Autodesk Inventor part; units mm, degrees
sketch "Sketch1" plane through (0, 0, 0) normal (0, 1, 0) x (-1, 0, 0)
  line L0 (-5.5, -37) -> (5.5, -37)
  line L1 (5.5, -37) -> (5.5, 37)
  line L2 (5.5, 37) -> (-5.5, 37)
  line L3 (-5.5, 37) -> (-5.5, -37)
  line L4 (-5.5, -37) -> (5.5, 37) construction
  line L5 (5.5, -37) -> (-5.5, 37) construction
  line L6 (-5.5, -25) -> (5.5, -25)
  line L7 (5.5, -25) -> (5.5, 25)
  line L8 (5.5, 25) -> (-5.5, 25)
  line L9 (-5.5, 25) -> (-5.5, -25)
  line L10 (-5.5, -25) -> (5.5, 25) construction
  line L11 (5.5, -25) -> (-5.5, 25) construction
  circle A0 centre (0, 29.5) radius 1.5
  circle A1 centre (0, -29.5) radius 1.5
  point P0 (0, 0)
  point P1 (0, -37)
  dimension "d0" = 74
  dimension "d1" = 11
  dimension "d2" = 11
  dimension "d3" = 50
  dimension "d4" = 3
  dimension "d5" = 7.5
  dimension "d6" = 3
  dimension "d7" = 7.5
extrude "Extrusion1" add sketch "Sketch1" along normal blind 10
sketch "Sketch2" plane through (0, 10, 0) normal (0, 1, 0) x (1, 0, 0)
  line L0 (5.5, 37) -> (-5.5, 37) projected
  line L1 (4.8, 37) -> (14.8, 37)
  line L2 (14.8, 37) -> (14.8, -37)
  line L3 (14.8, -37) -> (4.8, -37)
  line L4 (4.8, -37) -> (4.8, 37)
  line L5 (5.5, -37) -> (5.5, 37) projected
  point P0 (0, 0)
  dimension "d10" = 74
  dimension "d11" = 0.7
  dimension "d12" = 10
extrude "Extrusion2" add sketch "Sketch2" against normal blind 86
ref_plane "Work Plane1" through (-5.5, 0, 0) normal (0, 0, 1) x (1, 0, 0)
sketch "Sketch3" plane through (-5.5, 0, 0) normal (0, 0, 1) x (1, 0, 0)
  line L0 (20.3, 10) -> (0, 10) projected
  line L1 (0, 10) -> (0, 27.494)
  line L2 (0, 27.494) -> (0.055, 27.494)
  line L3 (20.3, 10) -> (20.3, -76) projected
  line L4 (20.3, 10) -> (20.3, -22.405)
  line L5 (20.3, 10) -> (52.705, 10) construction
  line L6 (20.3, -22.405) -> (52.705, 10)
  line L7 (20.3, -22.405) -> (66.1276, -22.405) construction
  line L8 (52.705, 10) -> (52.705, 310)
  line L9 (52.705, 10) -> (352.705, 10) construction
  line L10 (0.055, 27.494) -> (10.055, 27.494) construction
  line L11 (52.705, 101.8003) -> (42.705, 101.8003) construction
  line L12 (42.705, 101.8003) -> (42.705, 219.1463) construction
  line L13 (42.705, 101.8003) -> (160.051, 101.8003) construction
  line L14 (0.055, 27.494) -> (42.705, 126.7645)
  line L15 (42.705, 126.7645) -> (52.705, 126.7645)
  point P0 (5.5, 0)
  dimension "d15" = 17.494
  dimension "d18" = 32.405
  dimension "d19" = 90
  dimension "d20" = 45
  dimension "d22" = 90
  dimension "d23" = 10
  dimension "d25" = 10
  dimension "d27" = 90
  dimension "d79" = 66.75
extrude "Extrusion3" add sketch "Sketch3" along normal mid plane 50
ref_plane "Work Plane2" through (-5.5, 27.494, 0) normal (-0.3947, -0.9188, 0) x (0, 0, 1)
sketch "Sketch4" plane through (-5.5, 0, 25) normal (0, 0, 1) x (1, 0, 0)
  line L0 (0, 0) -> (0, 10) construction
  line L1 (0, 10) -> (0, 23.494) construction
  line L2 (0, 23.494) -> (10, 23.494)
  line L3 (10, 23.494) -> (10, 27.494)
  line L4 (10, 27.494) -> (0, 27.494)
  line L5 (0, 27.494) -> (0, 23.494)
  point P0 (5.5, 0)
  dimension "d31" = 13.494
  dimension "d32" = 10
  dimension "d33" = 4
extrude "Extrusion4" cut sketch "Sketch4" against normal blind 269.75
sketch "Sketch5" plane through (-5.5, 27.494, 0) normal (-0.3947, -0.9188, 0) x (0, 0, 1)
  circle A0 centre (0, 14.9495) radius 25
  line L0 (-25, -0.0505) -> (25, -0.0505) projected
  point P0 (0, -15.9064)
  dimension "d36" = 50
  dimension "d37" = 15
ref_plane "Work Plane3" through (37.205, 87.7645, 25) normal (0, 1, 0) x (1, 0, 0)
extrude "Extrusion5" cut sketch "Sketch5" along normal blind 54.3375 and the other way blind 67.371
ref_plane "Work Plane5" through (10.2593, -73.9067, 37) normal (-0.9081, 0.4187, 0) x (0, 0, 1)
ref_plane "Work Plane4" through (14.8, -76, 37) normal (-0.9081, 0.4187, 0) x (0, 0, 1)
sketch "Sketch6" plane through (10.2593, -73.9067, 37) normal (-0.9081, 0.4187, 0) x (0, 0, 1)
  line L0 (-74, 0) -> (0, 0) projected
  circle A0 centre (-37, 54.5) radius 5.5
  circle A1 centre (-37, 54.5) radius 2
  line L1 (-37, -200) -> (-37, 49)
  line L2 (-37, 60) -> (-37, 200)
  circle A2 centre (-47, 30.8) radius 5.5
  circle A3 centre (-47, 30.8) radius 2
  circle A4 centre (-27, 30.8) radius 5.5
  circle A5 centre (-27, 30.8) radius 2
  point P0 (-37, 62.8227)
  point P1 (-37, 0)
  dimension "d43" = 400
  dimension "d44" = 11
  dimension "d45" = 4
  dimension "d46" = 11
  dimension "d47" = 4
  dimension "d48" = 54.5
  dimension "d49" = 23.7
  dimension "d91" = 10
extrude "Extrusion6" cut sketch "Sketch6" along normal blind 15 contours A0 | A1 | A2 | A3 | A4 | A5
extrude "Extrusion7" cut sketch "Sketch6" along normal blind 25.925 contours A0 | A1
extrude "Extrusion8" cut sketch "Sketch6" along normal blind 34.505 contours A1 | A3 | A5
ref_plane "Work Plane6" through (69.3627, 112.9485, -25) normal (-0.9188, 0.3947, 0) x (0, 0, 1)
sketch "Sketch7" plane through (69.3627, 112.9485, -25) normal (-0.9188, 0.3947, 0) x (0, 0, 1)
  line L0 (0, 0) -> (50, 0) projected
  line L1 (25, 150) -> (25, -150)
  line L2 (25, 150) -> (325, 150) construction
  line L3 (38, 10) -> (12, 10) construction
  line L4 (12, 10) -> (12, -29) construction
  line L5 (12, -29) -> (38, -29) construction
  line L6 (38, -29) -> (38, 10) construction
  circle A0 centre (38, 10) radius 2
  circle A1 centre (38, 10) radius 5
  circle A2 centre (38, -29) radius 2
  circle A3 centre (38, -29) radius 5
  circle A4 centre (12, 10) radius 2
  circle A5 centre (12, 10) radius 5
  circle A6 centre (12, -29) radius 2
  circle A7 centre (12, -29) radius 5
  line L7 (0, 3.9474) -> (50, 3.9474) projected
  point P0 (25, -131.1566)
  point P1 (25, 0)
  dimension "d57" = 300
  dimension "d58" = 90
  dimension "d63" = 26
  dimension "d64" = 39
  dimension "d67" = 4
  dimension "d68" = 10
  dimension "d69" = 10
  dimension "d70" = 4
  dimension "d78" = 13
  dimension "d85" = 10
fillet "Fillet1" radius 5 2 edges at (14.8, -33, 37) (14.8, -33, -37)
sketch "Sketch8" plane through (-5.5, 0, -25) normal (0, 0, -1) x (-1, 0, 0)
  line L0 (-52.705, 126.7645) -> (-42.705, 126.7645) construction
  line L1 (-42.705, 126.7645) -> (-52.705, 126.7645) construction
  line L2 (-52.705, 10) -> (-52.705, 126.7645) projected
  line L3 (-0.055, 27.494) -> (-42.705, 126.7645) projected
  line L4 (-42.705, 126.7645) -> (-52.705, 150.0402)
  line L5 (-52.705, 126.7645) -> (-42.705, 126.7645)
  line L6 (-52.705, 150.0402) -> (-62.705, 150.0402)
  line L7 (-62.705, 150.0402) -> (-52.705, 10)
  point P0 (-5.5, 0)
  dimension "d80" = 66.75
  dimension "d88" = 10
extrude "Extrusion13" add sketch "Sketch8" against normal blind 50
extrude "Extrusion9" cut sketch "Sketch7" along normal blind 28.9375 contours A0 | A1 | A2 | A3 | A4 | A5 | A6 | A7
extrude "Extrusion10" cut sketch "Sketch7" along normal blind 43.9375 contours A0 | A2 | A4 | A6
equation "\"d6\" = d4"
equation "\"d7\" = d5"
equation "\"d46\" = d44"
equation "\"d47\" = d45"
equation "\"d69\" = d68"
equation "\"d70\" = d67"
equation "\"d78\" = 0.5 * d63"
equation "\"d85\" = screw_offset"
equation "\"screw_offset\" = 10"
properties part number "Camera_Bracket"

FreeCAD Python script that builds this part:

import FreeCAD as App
import Part
import Sketcher
Q = App.Units.Quantity


def edges_at(feature, points):
    """Names of the edges that pass closest to the given points."""
    edges = feature.Shape.Edges
    near = lambda p: min(range(len(edges)), key=lambda i: edges[i].distToShape(Part.Vertex(*p))[0])
    return sorted({f"Edge{near(p) + 1}" for p in points})

doc = App.newDocument("Part")
body = doc.addObject("PartDesign::Body", "Body")

sketch1 = body.newObject("Sketcher::SketchObject", "Sketch")
sketch1.AttachmentSupport = (doc.getObject("XZ_Plane"), [""])
sketch1.MapMode = "FlatFace"
sketch1.addGeometry(Part.LineSegment(App.Vector(5.5, -37, 0), App.Vector(-5.5, -37, 0)), False)
sketch1.addGeometry(Part.LineSegment(App.Vector(-5.5, -37, 0), App.Vector(-5.5, 37, 0)), False)
sketch1.addGeometry(Part.LineSegment(App.Vector(-5.5, 37, 0), App.Vector(5.5, 37, 0)), False)
sketch1.addGeometry(Part.LineSegment(App.Vector(5.5, 37, 0), App.Vector(5.5, -37, 0)), False)
sketch1.addGeometry(Part.Circle(App.Vector(0, -29.5, 0), App.Vector(0, 0, 1), 1.5), False)
sketch1.addGeometry(Part.Circle(App.Vector(0, 29.5, 0), App.Vector(0, 0, 1), 1.5), False)
sketch1.addConstraint(Sketcher.Constraint("Coincident", 0, 2, 1, 1))
sketch1.addConstraint(Sketcher.Constraint("Coincident", 1, 2, 2, 1))
sketch1.addConstraint(Sketcher.Constraint("Coincident", 2, 2, 3, 1))
sketch1.addConstraint(Sketcher.Constraint("Coincident", 3, 2, 0, 1))
sketch1.addConstraint(Sketcher.Constraint("Horizontal", 0))
sketch1.addConstraint(Sketcher.Constraint("Vertical", 1))
sketch1.addConstraint(Sketcher.Constraint("Horizontal", 2))
sketch1.addConstraint(Sketcher.Constraint("Vertical", 3))
sketch1.addConstraint(Sketcher.Constraint("Equal", 4, 5))
sketch1.addConstraint(Sketcher.Constraint("Symmetric", 4, 3, 5, 3, -1, 1))
sketch1.addConstraint(Sketcher.Constraint("Symmetric", 0, 2, 2, 2, -1, 1))
sketch1.addConstraint(Sketcher.Constraint("PointOnObject", 4, 3, -2))
sketch1.addConstraint(Sketcher.Constraint("Diameter", 4, 3.0))
sketch1.addConstraint(Sketcher.Constraint("DistanceX", 0, 2, 0, 1, 11.0))
sketch1.addConstraint(Sketcher.Constraint("DistanceY", 1, 1, 1, 2, 74.0))
sketch1.addConstraint(Sketcher.Constraint("DistanceY", 0, 2, 4, 3, 7.5))
pad1 = body.newObject("PartDesign::Pad", "Pad")
pad1.Profile = sketch1
pad1.Length = 10
pad1.Reversed = True

sketch2 = body.newObject("Sketcher::SketchObject", "Sketch001")
sketch2.AttachmentSupport = (doc.getObject("XZ_Plane"), [""])
sketch2.MapMode = "FlatFace"
sketch2.AttachmentOffset = App.Placement(App.Vector(0, 0, -10), App.Rotation())
sketch2.addGeometry(Part.LineSegment(App.Vector(4.8, 37, 0), App.Vector(14.8, 37, 0)), False)
sketch2.addGeometry(Part.LineSegment(App.Vector(14.8, 37, 0), App.Vector(14.8, -37, 0)), False)
sketch2.addGeometry(Part.LineSegment(App.Vector(14.8, -37, 0), App.Vector(4.8, -37, 0)), False)
sketch2.addGeometry(Part.LineSegment(App.Vector(4.8, -37, 0), App.Vector(4.8, 37, 0)), False)
sketch2.addConstraint(Sketcher.Constraint("Coincident", 0, 2, 1, 1))
sketch2.addConstraint(Sketcher.Constraint("Coincident", 1, 2, 2, 1))
sketch2.addConstraint(Sketcher.Constraint("Coincident", 2, 2, 3, 1))
sketch2.addConstraint(Sketcher.Constraint("Coincident", 3, 2, 0, 1))
sketch2.addConstraint(Sketcher.Constraint("Horizontal", 0))
sketch2.addConstraint(Sketcher.Constraint("Vertical", 1))
sketch2.addConstraint(Sketcher.Constraint("Horizontal", 2))
sketch2.addConstraint(Sketcher.Constraint("Vertical", 3))
sketch2.addConstraint(Sketcher.Constraint("DistanceX", 0, 1, 0, 2, 10.0))
sketch2.addConstraint(Sketcher.Constraint("DistanceY", 1, 2, 1, 1, 74.0))
sketch2.addConstraint(Sketcher.Constraint("DistanceY", -1, 1, 0, 2, 37.0))
sketch2.addConstraint(Sketcher.Constraint("DistanceX", -1, 1, 0, 2, 14.8))
pad2 = body.newObject("PartDesign::Pad", "Pad001")
pad2.Profile = sketch2
pad2.Length = 86

sketch3 = body.newObject("Sketcher::SketchObject", "Sketch002")
sketch3.AttachmentSupport = (doc.getObject("XY_Plane"), [""])
sketch3.MapMode = "FlatFace"
sketch3.addGeometry(Part.LineSegment(App.Vector(-5.5, 10, 0), App.Vector(14.8, 10, 0)), False)
sketch3.addGeometry(Part.LineSegment(App.Vector(14.8, 10, 0), App.Vector(14.8, -22.405, 0)), False)
sketch3.addGeometry(Part.LineSegment(App.Vector(14.8, -22.405, 0), App.Vector(47.205, 10, 0)), False)
sketch3.addGeometry(Part.LineSegment(App.Vector(47.205, 10, 0), App.Vector(47.205, 126.7645, 0)), False)
sketch3.addGeometry(Part.LineSegment(App.Vector(47.205, 126.7645, 0), App.Vector(37.205, 126.7645, 0)), False)
sketch3.addGeometry(Part.LineSegment(App.Vector(37.205, 126.7645, 0), App.Vector(-5.445, 27.494, 0)), False)
sketch3.addGeometry(Part.LineSegment(App.Vector(-5.445, 27.494, 0), App.Vector(-5.5, 27.494, 0)), False)
sketch3.addGeometry(Part.LineSegment(App.Vector(-5.5, 27.494, 0), App.Vector(-5.5, 10, 0)), False)
sketch3.addConstraint(Sketcher.Constraint("Coincident", 0, 2, 1, 1))
sketch3.addConstraint(Sketcher.Constraint("Coincident", 1, 2, 2, 1))
sketch3.addConstraint(Sketcher.Constraint("Coincident", 2, 2, 3, 1))
sketch3.addConstraint(Sketcher.Constraint("Coincident", 3, 2, 4, 1))
sketch3.addConstraint(Sketcher.Constraint("Coincident", 4, 2, 5, 1))
sketch3.addConstraint(Sketcher.Constraint("Coincident", 5, 2, 6, 1))
sketch3.addConstraint(Sketcher.Constraint("Coincident", 6, 2, 7, 1))
sketch3.addConstraint(Sketcher.Constraint("Coincident", 7, 2, 0, 1))
sketch3.addConstraint(Sketcher.Constraint("Horizontal", 0))
sketch3.addConstraint(Sketcher.Constraint("Vertical", 1))
sketch3.addConstraint(Sketcher.Constraint("Vertical", 3))
sketch3.addConstraint(Sketcher.Constraint("Horizontal", 4))
sketch3.addConstraint(Sketcher.Constraint("Horizontal", 6))
sketch3.addConstraint(Sketcher.Constraint("Vertical", 7))
sketch3.addConstraint(Sketcher.Constraint("Horizontal", 0, 2, 2, 2))
sketch3.addConstraint(Sketcher.Constraint("DistanceX", 4, 2, 4, 1, 10.0))
sketch3.addConstraint(Sketcher.Constraint("Angle", 2, Q("45 deg")))
sketch3.addConstraint(Sketcher.Constraint("DistanceY", -1, 1, 0, 2, 10.0))
sketch3.addConstraint(Sketcher.Constraint("DistanceY", 1, 2, 1, 1, 32.405))
sketch3.addConstraint(Sketcher.Constraint("DistanceY", 7, 2, 7, 1, 17.494))
sketch3.addConstraint(Sketcher.Constraint("DistanceX", 0, 1, 0, 2, 20.3))
sketch3.addConstraint(Sketcher.Constraint("DistanceX", -1, 1, 0, 2, 14.8))
sketch3.addConstraint(Sketcher.Constraint("Angle", 5, Q("-113.25 deg")))
sketch3.addConstraint(Sketcher.Constraint("DistanceX", 6, 2, 6, 1, 0.055))
pad3 = body.newObject("PartDesign::Pad", "Pad002")
pad3.Profile = sketch3
pad3.Length = 50
pad3.Midplane = True

sketch4 = body.newObject("Sketcher::SketchObject", "Sketch003")
sketch4.AttachmentSupport = (doc.getObject("XY_Plane"), [""])
sketch4.MapMode = "FlatFace"
sketch4.AttachmentOffset = App.Placement(App.Vector(0, 0, 25), App.Rotation())
sketch4.addGeometry(Part.LineSegment(App.Vector(-5.5, 27.494, 0), App.Vector(-5.5, 23.494, 0)), False)
sketch4.addGeometry(Part.LineSegment(App.Vector(-5.5, 23.494, 0), App.Vector(4.5, 23.494, 0)), False)
sketch4.addGeometry(Part.LineSegment(App.Vector(4.5, 23.494, 0), App.Vector(4.5, 27.494, 0)), False)
sketch4.addGeometry(Part.LineSegment(App.Vector(4.5, 27.494, 0), App.Vector(-5.5, 27.494, 0)), False)
sketch4.addConstraint(Sketcher.Constraint("Coincident", 0, 2, 1, 1))
sketch4.addConstraint(Sketcher.Constraint("Coincident", 1, 2, 2, 1))
sketch4.addConstraint(Sketcher.Constraint("Coincident", 2, 2, 3, 1))
sketch4.addConstraint(Sketcher.Constraint("Coincident", 3, 2, 0, 1))
sketch4.addConstraint(Sketcher.Constraint("Vertical", 0))
sketch4.addConstraint(Sketcher.Constraint("Horizontal", 1))
sketch4.addConstraint(Sketcher.Constraint("Vertical", 2))
sketch4.addConstraint(Sketcher.Constraint("Horizontal", 3))
sketch4.addConstraint(Sketcher.Constraint("DistanceX", 1, 1, 1, 2, 10.0))
sketch4.addConstraint(Sketcher.Constraint("DistanceY", 0, 2, 0, 1, 4.0))
sketch4.addConstraint(Sketcher.Constraint("DistanceX", 0, 2, -1, 1, 5.5))
sketch4.addConstraint(Sketcher.Constraint("DistanceY", -1, 1, 0, 2, 23.494))
pocket1 = body.newObject("PartDesign::Pocket", "Pocket")
pocket1.Profile = sketch4
pocket1.Length = 269.75

sketch5 = body.newObject("Sketcher::SketchObject", "Sketch004")
sketch5.Placement = App.Placement(App.Vector(-5.5, 27.494, 0), App.Rotation(App.Vector(0, 0, 1), App.Vector(-0.918808485, 0.394703645, 0), App.Vector(-0.394703645, -0.918808485, 0), "ZXY"))
sketch5.addGeometry(Part.Circle(App.Vector(0, 14.9495, 0), App.Vector(0, 0, 1), 25), False)
sketch5.addConstraint(Sketcher.Constraint("PointOnObject", 0, 3, -2))
sketch5.addConstraint(Sketcher.Constraint("Diameter", 0, 50.0))
sketch5.addConstraint(Sketcher.Constraint("DistanceY", -1, 1, 0, 3, 14.9495))
pocket2 = body.newObject("PartDesign::Pocket", "Pocket001")
pocket2.Profile = sketch5
pocket2.Type = "TwoLengths"
pocket2.Length = 54.3375
pocket2.Length2 = 67.371
pocket2.Reversed = True

sketch6 = body.newObject("Sketcher::SketchObject", "Sketch005")
sketch6.Placement = App.Placement(App.Vector(10.2593, -73.9067, 37), App.Rotation(App.Vector(0, 0, 1), App.Vector(0.418709358, 0.908120297, 0), App.Vector(-0.908120297, 0.418709358, 0), "ZXY"))
sketch6.addGeometry(Part.Circle(App.Vector(-37, 54.5, 0), App.Vector(0, 0, 1), 5.5), False)
sketch6.addGeometry(Part.Circle(App.Vector(-47, 30.8, 0), App.Vector(0, 0, 1), 5.5), False)
sketch6.addGeometry(Part.Circle(App.Vector(-27, 30.8, 0), App.Vector(0, 0, 1), 5.5), False)
sketch6.addConstraint(Sketcher.Constraint("Equal", 0, 1))
sketch6.addConstraint(Sketcher.Constraint("Equal", 1, 2))
sketch6.addConstraint(Sketcher.Constraint("Horizontal", 1, 3, 2, 3))
sketch6.addConstraint(Sketcher.Constraint("Diameter", 0, 11.0))
sketch6.addConstraint(Sketcher.Constraint("DistanceX", 1, 3, 0, 3, 10.0))
sketch6.addConstraint(Sketcher.Constraint("DistanceX", 0, 3, 2, 3, 10.0))
sketch6.addConstraint(Sketcher.Constraint("DistanceY", -1, 1, 0, 3, 54.5))
sketch6.addConstraint(Sketcher.Constraint("DistanceY", 1, 3, 0, 3, 23.7))
sketch6.addConstraint(Sketcher.Constraint("DistanceX", 0, 3, -1, 1, 37.0))
pocket3 = body.newObject("PartDesign::Pocket", "Pocket002")
pocket3.Profile = sketch6
pocket3.Length = 15
pocket3.Reversed = True

sketch7 = body.newObject("Sketcher::SketchObject", "Sketch006")
sketch7.Placement = App.Placement(App.Vector(10.2593, -73.9067, 37), App.Rotation(App.Vector(0, 0, 1), App.Vector(0.418709358, 0.908120297, 0), App.Vector(-0.908120297, 0.418709358, 0), "ZXY"))
sketch7.addGeometry(Part.Circle(App.Vector(-37, 54.5, 0), App.Vector(0, 0, 1), 5.5), False)
sketch7.addConstraint(Sketcher.Constraint("Diameter", 0, 11.0))
sketch7.addConstraint(Sketcher.Constraint("DistanceY", -1, 1, 0, 3, 54.5))
sketch7.addConstraint(Sketcher.Constraint("DistanceX", 0, 3, -1, 1, 37.0))
pocket4 = body.newObject("PartDesign::Pocket", "Pocket003")
pocket4.Profile = sketch7
pocket4.Length = 25.925
pocket4.Reversed = True

sketch8 = body.newObject("Sketcher::SketchObject", "Sketch007")
sketch8.Placement = App.Placement(App.Vector(10.2593, -73.9067, 37), App.Rotation(App.Vector(0, 0, 1), App.Vector(0.418709358, 0.908120297, 0), App.Vector(-0.908120297, 0.418709358, 0), "ZXY"))
sketch8.addGeometry(Part.Circle(App.Vector(-37, 54.5, 0), App.Vector(0, 0, 1), 2), False)
sketch8.addGeometry(Part.Circle(App.Vector(-47, 30.8, 0), App.Vector(0, 0, 1), 2), False)
sketch8.addGeometry(Part.Circle(App.Vector(-27, 30.8, 0), App.Vector(0, 0, 1), 2), False)
sketch8.addConstraint(Sketcher.Constraint("Equal", 0, 1))
sketch8.addConstraint(Sketcher.Constraint("Equal", 1, 2))
sketch8.addConstraint(Sketcher.Constraint("Horizontal", 1, 3, 2, 3))
sketch8.addConstraint(Sketcher.Constraint("Diameter", 0, 4.0))
sketch8.addConstraint(Sketcher.Constraint("DistanceX", 1, 3, 0, 3, 10.0))
sketch8.addConstraint(Sketcher.Constraint("DistanceX", 0, 3, 2, 3, 10.0))
sketch8.addConstraint(Sketcher.Constraint("DistanceY", -1, 1, 0, 3, 54.5))
sketch8.addConstraint(Sketcher.Constraint("DistanceY", 1, 3, 0, 3, 23.7))
sketch8.addConstraint(Sketcher.Constraint("DistanceX", 0, 3, -1, 1, 37.0))
pocket5 = body.newObject("PartDesign::Pocket", "Pocket004")
pocket5.Profile = sketch8
pocket5.Length = 34.505
pocket5.Reversed = True
doc.recompute()

fillet = body.newObject("PartDesign::Fillet", "Fillet")
fillet.Base = (pocket5, edges_at(pocket5, [(14.8, -33, 37), (14.8, -33, -37)]))
fillet.Radius = 5

sketch9 = body.newObject("Sketcher::SketchObject", "Sketch008")
sketch9.AttachmentSupport = (doc.getObject("XY_Plane"), [""])
sketch9.MapMode = "FlatFace"
sketch9.AttachmentOffset = App.Placement(App.Vector(0, 0, -25), App.Rotation())
sketch9.addGeometry(Part.LineSegment(App.Vector(57.205, 150.0402, 0), App.Vector(47.205, 10, 0)), False)
sketch9.addGeometry(Part.LineSegment(App.Vector(47.205, 10, 0), App.Vector(47.205, 126.7645, 0)), False)
sketch9.addGeometry(Part.LineSegment(App.Vector(47.205, 126.7645, 0), App.Vector(37.205, 126.7645, 0)), False)
sketch9.addGeometry(Part.LineSegment(App.Vector(37.205, 126.7645, 0), App.Vector(47.205, 150.0402, 0)), False)
sketch9.addGeometry(Part.LineSegment(App.Vector(47.205, 150.0402, 0), App.Vector(57.205, 150.0402, 0)), False)
sketch9.addConstraint(Sketcher.Constraint("Coincident", 0, 2, 1, 1))
sketch9.addConstraint(Sketcher.Constraint("Coincident", 1, 2, 2, 1))
sketch9.addConstraint(Sketcher.Constraint("Coincident", 2, 2, 3, 1))
sketch9.addConstraint(Sketcher.Constraint("Coincident", 3, 2, 4, 1))
sketch9.addConstraint(Sketcher.Constraint("Coincident", 4, 2, 0, 1))
sketch9.addConstraint(Sketcher.Constraint("Vertical", 1))
sketch9.addConstraint(Sketcher.Constraint("Horizontal", 2))
sketch9.addConstraint(Sketcher.Constraint("Horizontal", 4))
sketch9.addConstraint(Sketcher.Constraint("Vertical", 1, 2, 3, 2))
sketch9.addConstraint(Sketcher.Constraint("Equal", 2, 4))
sketch9.addConstraint(Sketcher.Constraint("DistanceX", 2, 2, 2, 1, 10.0))
sketch9.addConstraint(Sketcher.Constraint("DistanceY", -1, 1, 0, 2, 10.0))
sketch9.addConstraint(Sketcher.Constraint("Angle", 3, Q("66.75 deg")))
sketch9.addConstraint(Sketcher.Constraint("DistanceY", 1, 1, 1, 2, 116.7645))
sketch9.addConstraint(Sketcher.Constraint("DistanceX", -1, 1, 0, 2, 47.205))
pad4 = body.newObject("PartDesign::Pad", "Pad003")
pad4.Profile = sketch9
pad4.Length = 50

sketch10 = body.newObject("Sketcher::SketchObject", "Sketch009")
sketch10.Placement = App.Placement(App.Vector(69.3627, 112.9485, -25), App.Rotation(App.Vector(0, 0, 1), App.Vector(0.394703645, 0.918808485, 0), App.Vector(-0.918808485, 0.394703645, 0), "ZXY"))
sketch10.addGeometry(Part.Circle(App.Vector(38, 10, 0), App.Vector(0, 0, 1), 5), False)
sketch10.addGeometry(Part.Circle(App.Vector(38, -29, 0), App.Vector(0, 0, 1), 5), False)
sketch10.addGeometry(Part.Circle(App.Vector(12, 10, 0), App.Vector(0, 0, 1), 5), False)
sketch10.addGeometry(Part.Circle(App.Vector(12, -29, 0), App.Vector(0, 0, 1), 5), False)
sketch10.addConstraint(Sketcher.Constraint("Equal", 0, 1))
sketch10.addConstraint(Sketcher.Constraint("Equal", 1, 2))
sketch10.addConstraint(Sketcher.Constraint("Equal", 2, 3))
sketch10.addConstraint(Sketcher.Constraint("Horizontal", 0, 3, 2, 3))
sketch10.addConstraint(Sketcher.Constraint("Horizontal", 1, 3, 3, 3))
sketch10.addConstraint(Sketcher.Constraint("Vertical", 0, 3, 1, 3))
sketch10.addConstraint(Sketcher.Constraint("Vertical", 2, 3, 3, 3))
sketch10.addConstraint(Sketcher.Constraint("Diameter", 0, 10.0))
sketch10.addConstraint(Sketcher.Constraint("DistanceY", -1, 1, 0, 3, 10.0))
sketch10.addConstraint(Sketcher.Constraint("DistanceY", 1, 3, 0, 3, 39.0))
sketch10.addConstraint(Sketcher.Constraint("DistanceX", 2, 3, 0, 3, 26.0))
sketch10.addConstraint(Sketcher.Constraint("DistanceX", -1, 1, 0, 3, 38.0))
pocket6 = body.newObject("PartDesign::Pocket", "Pocket005")
pocket6.Profile = sketch10
pocket6.Length = 28.9375
pocket6.Reversed = True

sketch11 = body.newObject("Sketcher::SketchObject", "Sketch010")
sketch11.Placement = App.Placement(App.Vector(69.3627, 112.9485, -25), App.Rotation(App.Vector(0, 0, 1), App.Vector(0.394703645, 0.918808485, 0), App.Vector(-0.918808485, 0.394703645, 0), "ZXY"))
sketch11.addGeometry(Part.Circle(App.Vector(38, 10, 0), App.Vector(0, 0, 1), 2), False)
sketch11.addGeometry(Part.Circle(App.Vector(38, -29, 0), App.Vector(0, 0, 1), 2), False)
sketch11.addGeometry(Part.Circle(App.Vector(12, 10, 0), App.Vector(0, 0, 1), 2), False)
sketch11.addGeometry(Part.Circle(App.Vector(12, -29, 0), App.Vector(0, 0, 1), 2), False)
sketch11.addConstraint(Sketcher.Constraint("Equal", 0, 1))
sketch11.addConstraint(Sketcher.Constraint("Equal", 1, 2))
sketch11.addConstraint(Sketcher.Constraint("Equal", 2, 3))
sketch11.addConstraint(Sketcher.Constraint("Horizontal", 0, 3, 2, 3))
sketch11.addConstraint(Sketcher.Constraint("Horizontal", 1, 3, 3, 3))
sketch11.addConstraint(Sketcher.Constraint("Vertical", 0, 3, 1, 3))
sketch11.addConstraint(Sketcher.Constraint("Vertical", 2, 3, 3, 3))
sketch11.addConstraint(Sketcher.Constraint("Diameter", 0, 4.0))
sketch11.addConstraint(Sketcher.Constraint("DistanceY", -1, 1, 0, 3, 10.0))
sketch11.addConstraint(Sketcher.Constraint("DistanceY", 1, 3, 0, 3, 39.0))
sketch11.addConstraint(Sketcher.Constraint("DistanceX", 2, 3, 0, 3, 26.0))
sketch11.addConstraint(Sketcher.Constraint("DistanceX", -1, 1, 0, 3, 38.0))
pocket7 = body.newObject("PartDesign::Pocket", "Pocket006")
pocket7.Profile = sketch11
pocket7.Length = 43.9375
pocket7.Reversed = True

doc.recompute()
